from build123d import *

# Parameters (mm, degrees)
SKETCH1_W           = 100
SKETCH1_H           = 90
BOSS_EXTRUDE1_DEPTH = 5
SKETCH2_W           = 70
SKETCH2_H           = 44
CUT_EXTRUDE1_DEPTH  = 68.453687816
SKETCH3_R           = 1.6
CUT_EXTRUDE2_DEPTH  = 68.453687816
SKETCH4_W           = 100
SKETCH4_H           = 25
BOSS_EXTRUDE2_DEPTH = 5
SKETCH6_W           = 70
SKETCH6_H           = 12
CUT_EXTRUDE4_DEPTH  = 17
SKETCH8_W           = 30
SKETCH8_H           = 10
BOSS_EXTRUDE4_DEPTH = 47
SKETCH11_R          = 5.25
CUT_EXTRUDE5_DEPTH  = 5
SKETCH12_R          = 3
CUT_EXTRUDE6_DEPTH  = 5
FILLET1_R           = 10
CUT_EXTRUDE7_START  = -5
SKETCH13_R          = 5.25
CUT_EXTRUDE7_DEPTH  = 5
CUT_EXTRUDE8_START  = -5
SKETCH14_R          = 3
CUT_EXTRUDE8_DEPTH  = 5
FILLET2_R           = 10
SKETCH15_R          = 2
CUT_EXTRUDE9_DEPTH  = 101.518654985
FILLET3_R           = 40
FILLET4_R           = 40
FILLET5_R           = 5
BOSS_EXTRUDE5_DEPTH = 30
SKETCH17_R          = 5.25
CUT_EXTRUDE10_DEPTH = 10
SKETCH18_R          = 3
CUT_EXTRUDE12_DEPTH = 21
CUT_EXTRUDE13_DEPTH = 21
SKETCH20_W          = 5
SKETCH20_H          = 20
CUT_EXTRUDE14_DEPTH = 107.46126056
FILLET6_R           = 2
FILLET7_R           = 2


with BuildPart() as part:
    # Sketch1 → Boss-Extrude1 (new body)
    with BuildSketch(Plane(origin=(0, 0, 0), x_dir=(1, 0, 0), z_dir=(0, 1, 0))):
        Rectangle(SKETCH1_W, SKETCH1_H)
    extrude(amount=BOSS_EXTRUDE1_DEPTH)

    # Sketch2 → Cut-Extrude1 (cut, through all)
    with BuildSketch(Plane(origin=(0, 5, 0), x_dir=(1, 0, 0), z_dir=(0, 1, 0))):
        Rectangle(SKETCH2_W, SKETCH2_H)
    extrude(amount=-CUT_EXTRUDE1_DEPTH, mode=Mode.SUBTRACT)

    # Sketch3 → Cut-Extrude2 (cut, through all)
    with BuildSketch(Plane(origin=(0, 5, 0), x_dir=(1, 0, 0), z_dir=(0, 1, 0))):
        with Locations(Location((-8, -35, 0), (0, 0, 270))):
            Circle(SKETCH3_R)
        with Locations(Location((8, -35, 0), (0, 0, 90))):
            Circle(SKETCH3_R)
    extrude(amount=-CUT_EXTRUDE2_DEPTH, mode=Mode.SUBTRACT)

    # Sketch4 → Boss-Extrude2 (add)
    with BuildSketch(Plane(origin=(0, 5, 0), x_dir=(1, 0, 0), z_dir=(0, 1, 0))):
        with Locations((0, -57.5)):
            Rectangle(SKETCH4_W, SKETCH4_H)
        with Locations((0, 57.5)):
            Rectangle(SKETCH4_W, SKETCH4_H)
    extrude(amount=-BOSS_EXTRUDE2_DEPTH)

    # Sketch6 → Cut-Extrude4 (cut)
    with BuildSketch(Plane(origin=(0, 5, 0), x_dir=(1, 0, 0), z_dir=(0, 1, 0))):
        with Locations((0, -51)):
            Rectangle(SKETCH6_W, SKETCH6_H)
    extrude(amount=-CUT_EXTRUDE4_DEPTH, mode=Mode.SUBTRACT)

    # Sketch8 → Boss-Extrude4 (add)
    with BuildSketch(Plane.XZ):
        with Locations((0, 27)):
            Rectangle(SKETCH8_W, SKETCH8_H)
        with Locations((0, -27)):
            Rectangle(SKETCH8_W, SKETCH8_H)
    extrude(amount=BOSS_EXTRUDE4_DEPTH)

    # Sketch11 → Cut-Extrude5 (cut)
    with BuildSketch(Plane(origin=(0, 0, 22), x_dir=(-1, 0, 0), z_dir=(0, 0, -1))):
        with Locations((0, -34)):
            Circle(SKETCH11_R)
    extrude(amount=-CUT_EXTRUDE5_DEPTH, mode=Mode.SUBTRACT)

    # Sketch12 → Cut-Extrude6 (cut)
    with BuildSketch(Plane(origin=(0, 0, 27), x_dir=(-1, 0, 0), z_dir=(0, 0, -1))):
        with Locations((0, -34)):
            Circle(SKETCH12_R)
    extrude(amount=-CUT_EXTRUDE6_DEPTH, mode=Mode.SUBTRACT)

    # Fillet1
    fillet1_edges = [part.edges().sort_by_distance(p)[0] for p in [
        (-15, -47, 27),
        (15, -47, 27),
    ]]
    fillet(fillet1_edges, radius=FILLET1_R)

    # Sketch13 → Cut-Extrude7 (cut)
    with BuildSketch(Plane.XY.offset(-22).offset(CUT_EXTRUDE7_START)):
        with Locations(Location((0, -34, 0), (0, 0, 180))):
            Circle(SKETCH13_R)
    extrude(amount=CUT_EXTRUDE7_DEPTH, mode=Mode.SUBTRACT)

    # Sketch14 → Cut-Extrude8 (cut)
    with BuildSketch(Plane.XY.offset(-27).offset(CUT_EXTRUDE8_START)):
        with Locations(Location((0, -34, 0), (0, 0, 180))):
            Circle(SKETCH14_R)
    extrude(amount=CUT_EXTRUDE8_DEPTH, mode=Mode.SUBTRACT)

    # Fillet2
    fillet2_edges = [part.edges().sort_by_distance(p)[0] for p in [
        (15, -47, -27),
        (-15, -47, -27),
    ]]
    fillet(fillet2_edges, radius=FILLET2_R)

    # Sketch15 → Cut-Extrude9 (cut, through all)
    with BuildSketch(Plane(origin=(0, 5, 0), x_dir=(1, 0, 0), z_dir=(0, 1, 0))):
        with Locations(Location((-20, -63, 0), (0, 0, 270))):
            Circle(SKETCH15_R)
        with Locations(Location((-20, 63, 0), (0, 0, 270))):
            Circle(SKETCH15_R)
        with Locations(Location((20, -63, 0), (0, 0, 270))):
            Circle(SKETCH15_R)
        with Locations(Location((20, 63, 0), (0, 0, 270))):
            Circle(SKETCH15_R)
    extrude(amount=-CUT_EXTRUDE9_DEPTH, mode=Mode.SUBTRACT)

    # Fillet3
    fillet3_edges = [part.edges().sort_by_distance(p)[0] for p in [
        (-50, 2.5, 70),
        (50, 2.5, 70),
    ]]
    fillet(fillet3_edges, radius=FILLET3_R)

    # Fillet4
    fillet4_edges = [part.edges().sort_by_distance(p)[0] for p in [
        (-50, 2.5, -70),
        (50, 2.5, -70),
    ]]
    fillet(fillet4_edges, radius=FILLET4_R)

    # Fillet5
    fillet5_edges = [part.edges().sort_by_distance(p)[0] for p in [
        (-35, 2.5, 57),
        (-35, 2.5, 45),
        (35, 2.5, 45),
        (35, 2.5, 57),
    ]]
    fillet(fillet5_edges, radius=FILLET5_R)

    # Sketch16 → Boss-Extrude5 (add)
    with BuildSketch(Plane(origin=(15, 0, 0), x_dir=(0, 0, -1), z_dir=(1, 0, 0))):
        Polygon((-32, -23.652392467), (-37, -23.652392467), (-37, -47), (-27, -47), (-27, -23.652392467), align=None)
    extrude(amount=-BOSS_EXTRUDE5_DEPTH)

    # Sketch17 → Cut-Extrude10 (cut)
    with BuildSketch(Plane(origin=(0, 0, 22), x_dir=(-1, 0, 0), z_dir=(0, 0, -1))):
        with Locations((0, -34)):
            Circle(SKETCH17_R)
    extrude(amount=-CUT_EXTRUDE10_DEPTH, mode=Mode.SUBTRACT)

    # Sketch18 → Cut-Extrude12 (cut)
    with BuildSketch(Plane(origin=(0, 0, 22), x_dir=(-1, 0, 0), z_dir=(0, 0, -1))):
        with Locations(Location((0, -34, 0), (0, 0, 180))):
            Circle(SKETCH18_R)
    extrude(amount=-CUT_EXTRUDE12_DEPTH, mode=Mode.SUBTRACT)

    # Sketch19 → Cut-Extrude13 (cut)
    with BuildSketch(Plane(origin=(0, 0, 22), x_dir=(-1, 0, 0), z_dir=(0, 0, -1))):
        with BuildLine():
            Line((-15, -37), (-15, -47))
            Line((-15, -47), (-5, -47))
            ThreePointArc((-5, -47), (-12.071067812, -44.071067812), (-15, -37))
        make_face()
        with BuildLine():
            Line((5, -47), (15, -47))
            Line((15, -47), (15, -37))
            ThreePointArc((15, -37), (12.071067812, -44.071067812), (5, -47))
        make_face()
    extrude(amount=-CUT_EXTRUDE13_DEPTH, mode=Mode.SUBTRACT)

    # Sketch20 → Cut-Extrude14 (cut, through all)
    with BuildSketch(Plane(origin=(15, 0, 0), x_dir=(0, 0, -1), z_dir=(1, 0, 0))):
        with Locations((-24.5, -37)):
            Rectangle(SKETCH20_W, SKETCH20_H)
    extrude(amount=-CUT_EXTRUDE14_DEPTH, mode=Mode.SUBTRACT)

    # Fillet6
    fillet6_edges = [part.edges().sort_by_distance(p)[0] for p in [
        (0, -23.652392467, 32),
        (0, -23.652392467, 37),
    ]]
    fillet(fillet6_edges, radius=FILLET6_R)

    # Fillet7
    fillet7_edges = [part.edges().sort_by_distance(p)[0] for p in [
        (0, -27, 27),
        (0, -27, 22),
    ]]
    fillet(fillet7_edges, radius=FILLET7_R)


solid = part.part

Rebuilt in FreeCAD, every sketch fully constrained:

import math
import FreeCAD as App
import Part
import Sketcher
from FreeCAD import Vector


def edges_at(feature, points):
    """Names of the edges that pass closest to the given points."""
    edges = feature.Shape.Edges
    near = lambda p: min(range(len(edges)), key=lambda i: edges[i].distToShape(Part.Vertex(*p))[0])
    return sorted({f"Edge{near(p) + 1}" for p in points})

doc = App.newDocument("Part")
body = doc.addObject("PartDesign::Body", "Body")

# Sketch on XZ plane
sketch1 = doc.addObject("Sketcher::SketchObject", "Sketch")
body.addObject(sketch1)
sketch1.AttachmentSupport = (doc.XZ_Plane, [""])
sketch1.MapMode = "FlatFace"
sketch1.addGeometry([
    Part.LineSegment(Vector(-50, -45, 0), Vector(-50, 45, 0)),
    Part.LineSegment(Vector(-50, 45, 0), Vector(50, 45, 0)),
    Part.LineSegment(Vector(50, 45, 0), Vector(50, -45, 0)),
    Part.LineSegment(Vector(50, -45, 0), Vector(-50, -45, 0)),
], False)
sketch1.addConstraint([
    Sketcher.Constraint("Coincident", 0, 2, 1, 1),
    Sketcher.Constraint("Coincident", 1, 2, 2, 1),
    Sketcher.Constraint("Coincident", 2, 2, 3, 1),
    Sketcher.Constraint("Coincident", 3, 2, 0, 1),
    Sketcher.Constraint("Vertical", 0),
    Sketcher.Constraint("Horizontal", 1),
    Sketcher.Constraint("Vertical", 2),
    Sketcher.Constraint("Horizontal", 3),
    Sketcher.Constraint("Symmetric", 0, 2, 2, 2, -1, 1),
    Sketcher.Constraint("DistanceX", 1, 1, 1, 2, 100.0),
    Sketcher.Constraint("DistanceY", 0, 1, 0, 2, 90.0),
])
pad1 = doc.addObject("PartDesign::Pad", "Pad")
body.addObject(pad1)
pad1.Profile = sketch1
pad1.Length = 5
pad1.Reversed = True

# Sketch on XZ plane
sketch2 = doc.addObject("Sketcher::SketchObject", "Sketch001")
body.addObject(sketch2)
sketch2.AttachmentSupport = (doc.XZ_Plane, [""])
sketch2.MapMode = "FlatFace"
sketch2.AttachmentOffset = App.Placement(Vector(0, 0, -5), App.Rotation())
sketch2.addGeometry([
    Part.LineSegment(Vector(-35, -22, 0), Vector(-35, 22, 0)),
    Part.LineSegment(Vector(-35, 22, 0), Vector(35, 22, 0)),
    Part.LineSegment(Vector(35, 22, 0), Vector(35, -22, 0)),
    Part.LineSegment(Vector(35, -22, 0), Vector(-35, -22, 0)),
], False)
sketch2.addConstraint([
    Sketcher.Constraint("Coincident", 0, 2, 1, 1),
    Sketcher.Constraint("Coincident", 1, 2, 2, 1),
    Sketcher.Constraint("Coincident", 2, 2, 3, 1),
    Sketcher.Constraint("Coincident", 3, 2, 0, 1),
    Sketcher.Constraint("Vertical", 0),
    Sketcher.Constraint("Horizontal", 1),
    Sketcher.Constraint("Vertical", 2),
    Sketcher.Constraint("Horizontal", 3),
    Sketcher.Constraint("Symmetric", 0, 2, 2, 2, -1, 1),
    Sketcher.Constraint("DistanceX", 1, 1, 1, 2, 70.0),
    Sketcher.Constraint("DistanceY", 0, 1, 0, 2, 44.0),
])
pocket1 = doc.addObject("PartDesign::Pocket", "Pocket")
body.addObject(pocket1)
pocket1.Profile = sketch2
pocket1.Type = "ThroughAll"
pocket1.Reversed = True

# Sketch on XZ plane
sketch3 = doc.addObject("Sketcher::SketchObject", "Sketch002")
body.addObject(sketch3)
sketch3.AttachmentSupport = (doc.XZ_Plane, [""])
sketch3.MapMode = "FlatFace"
sketch3.AttachmentOffset = App.Placement(Vector(0, 0, -5), App.Rotation())
sketch3.addGeometry([
    Part.Circle(Vector(-8, 35, 0), Vector(0, 0, 1), 1.6),
    Part.Circle(Vector(8, 35, 0), Vector(0, 0, 1), 1.6),
], False)
sketch3.addConstraint([
    Sketcher.Constraint("Equal", 0, 1),
    Sketcher.Constraint("Symmetric", 0, 3, 1, 3, -2),
    Sketcher.Constraint("Diameter", 0, 3.2),
    Sketcher.Constraint("DistanceX", 0, 3, -1, 1, 8.0),
    Sketcher.Constraint("DistanceY", -1, 1, 0, 3, 35.0),
])
pocket2 = doc.addObject("PartDesign::Pocket", "Pocket001")
body.addObject(pocket2)
pocket2.Profile = sketch3
pocket2.Type = "ThroughAll"
pocket2.Reversed = True

# Sketch on XZ plane
sketch4 = doc.addObject("Sketcher::SketchObject", "Sketch003")
body.addObject(sketch4)
sketch4.AttachmentSupport = (doc.XZ_Plane, [""])
sketch4.MapMode = "FlatFace"
sketch4.AttachmentOffset = App.Placement(Vector(0, 0, -5), App.Rotation())
sketch4.addGeometry([
    Part.LineSegment(Vector(-50, 45, 0), Vector(-50, 70, 0)),  # 0
    Part.LineSegment(Vector(-50, 70, 0), Vector(50, 70, 0)),  # 1
    Part.LineSegment(Vector(50, 70, 0), Vector(50, 45, 0)),  # 2
    Part.LineSegment(Vector(50, 45, 0), Vector(-50, 45, 0)),  # 3
    Part.LineSegment(Vector(-50, -70, 0), Vector(-50, -45, 0)),  # 4
    Part.LineSegment(Vector(-50, -45, 0), Vector(50, -45, 0)),  # 5
    Part.LineSegment(Vector(50, -45, 0), Vector(50, -70, 0)),  # 6
    Part.LineSegment(Vector(50, -70, 0), Vector(-50, -70, 0)),  # 7
], False)
sketch4.addConstraint([
    Sketcher.Constraint("Coincident", 0, 2, 1, 1),
    Sketcher.Constraint("Coincident", 1, 2, 2, 1),
    Sketcher.Constraint("Coincident", 2, 2, 3, 1),
    Sketcher.Constraint("Coincident", 3, 2, 0, 1),
    Sketcher.Constraint("Coincident", 4, 2, 5, 1),
    Sketcher.Constraint("Coincident", 5, 2, 6, 1),
    Sketcher.Constraint("Coincident", 6, 2, 7, 1),
    Sketcher.Constraint("Coincident", 7, 2, 4, 1),
    Sketcher.Constraint("Vertical", 0),
    Sketcher.Constraint("Horizontal", 1),
    Sketcher.Constraint("Vertical", 2),
    Sketcher.Constraint("Horizontal", 3),
    Sketcher.Constraint("Vertical", 4),
    Sketcher.Constraint("Horizontal", 5),
    Sketcher.Constraint("Vertical", 6),
    Sketcher.Constraint("Horizontal", 7),
    Sketcher.Constraint("Symmetric", 2, 2, 4, 2, -1, 1),
    Sketcher.Constraint("Symmetric", 0, 2, 6, 2, -1, 1),
    Sketcher.Constraint("Vertical", 3, 2, 4, 2),
    Sketcher.Constraint("DistanceX", 1, 1, 1, 2, 100.0),
    Sketcher.Constraint("DistanceY", 0, 1, 0, 2, 25.0),
    Sketcher.Constraint("DistanceY", -1, 1, 0, 2, 70.0),
])
pad2 = doc.addObject("PartDesign::Pad", "Pad001")
body.addObject(pad2)
pad2.Profile = sketch4
pad2.Length = 5

# Sketch on XZ plane
sketch5 = doc.addObject("Sketcher::SketchObject", "Sketch004")
body.addObject(sketch5)
sketch5.AttachmentSupport = (doc.XZ_Plane, [""])
sketch5.MapMode = "FlatFace"
sketch5.AttachmentOffset = App.Placement(Vector(0, 0, -5), App.Rotation())
sketch5.addGeometry([
    Part.LineSegment(Vector(-35, 45, 0), Vector(-35, 57, 0)),
    Part.LineSegment(Vector(-35, 57, 0), Vector(35, 57, 0)),
    Part.LineSegment(Vector(35, 57, 0), Vector(35, 45, 0)),
    Part.LineSegment(Vector(35, 45, 0), Vector(-35, 45, 0)),
], False)
sketch5.addConstraint([
    Sketcher.Constraint("Coincident", 0, 2, 1, 1),
    Sketcher.Constraint("Coincident", 1, 2, 2, 1),
    Sketcher.Constraint("Coincident", 2, 2, 3, 1),
    Sketcher.Constraint("Coincident", 3, 2, 0, 1),
    Sketcher.Constraint("Vertical", 0),
    Sketcher.Constraint("Horizontal", 1),
    Sketcher.Constraint("Vertical", 2),
    Sketcher.Constraint("Horizontal", 3),
    Sketcher.Constraint("DistanceX", 1, 1, 1, 2, 70.0),
    Sketcher.Constraint("DistanceY", 0, 1, 0, 2, 12.0),
    Sketcher.Constraint("DistanceX", 0, 2, -1, 1, 35.0),
    Sketcher.Constraint("DistanceY", -1, 1, 0, 2, 57.0),
])
pocket3 = doc.addObject("PartDesign::Pocket", "Pocket002")
body.addObject(pocket3)
pocket3.Profile = sketch5
pocket3.Length = 17
pocket3.Reversed = True

# Sketch on XZ plane
sketch6 = doc.addObject("Sketcher::SketchObject", "Sketch005")
body.addObject(sketch6)
sketch6.AttachmentSupport = (doc.XZ_Plane, [""])
sketch6.MapMode = "FlatFace"
sketch6.addGeometry([
    Part.LineSegment(Vector(-15, 32, 0), Vector(-15, 22, 0)),  # 0
    Part.LineSegment(Vector(-15, 22, 0), Vector(15, 22, 0)),  # 1
    Part.LineSegment(Vector(15, 22, 0), Vector(15, 32, 0)),  # 2
    Part.LineSegment(Vector(15, 32, 0), Vector(-15, 32, 0)),  # 3
    Part.LineSegment(Vector(-15, -22, 0), Vector(-15, -32, 0)),  # 4
    Part.LineSegment(Vector(-15, -32, 0), Vector(15, -32, 0)),  # 5
    Part.LineSegment(Vector(15, -32, 0), Vector(15, -22, 0)),  # 6
    Part.LineSegment(Vector(15, -22, 0), Vector(-15, -22, 0)),  # 7
], False)
sketch6.addConstraint([
    Sketcher.Constraint("Coincident", 0, 2, 1, 1),
    Sketcher.Constraint("Coincident", 1, 2, 2, 1),
    Sketcher.Constraint("Coincident", 2, 2, 3, 1),
    Sketcher.Constraint("Coincident", 3, 2, 0, 1),
    Sketcher.Constraint("Coincident", 4, 2, 5, 1),
    Sketcher.Constraint("Coincident", 5, 2, 6, 1),
    Sketcher.Constraint("Coincident", 6, 2, 7, 1),
    Sketcher.Constraint("Coincident", 7, 2, 4, 1),
    Sketcher.Constraint("Vertical", 0),
    Sketcher.Constraint("Horizontal", 1),
    Sketcher.Constraint("Vertical", 2),
    Sketcher.Constraint("Horizontal", 3),
    Sketcher.Constraint("Vertical", 4),
    Sketcher.Constraint("Horizontal", 5),
    Sketcher.Constraint("Vertical", 6),
    Sketcher.Constraint("Horizontal", 7),
    Sketcher.Constraint("Symmetric", 2, 2, 4, 2, -1, 1),
    Sketcher.Constraint("Symmetric", 0, 2, 6, 2, -1, 1),
    Sketcher.Constraint("Vertical", 3, 2, 4, 2),
    Sketcher.Constraint("DistanceX", 1, 1, 1, 2, 30.0),
    Sketcher.Constraint("DistanceY", 0, 2, 0, 1, 10.0),
    Sketcher.Constraint("DistanceY", -1, 1, 0, 2, 22.0),
])
pad3 = doc.addObject("PartDesign::Pad", "Pad002")
body.addObject(pad3)
pad3.Profile = sketch6
pad3.Length = 47

# Sketch on XY plane
sketch7 = doc.addObject("Sketcher::SketchObject", "Sketch006")
body.addObject(sketch7)
sketch7.AttachmentSupport = (doc.XY_Plane, [""])
sketch7.MapMode = "FlatFace"
sketch7.AttachmentOffset = App.Placement(Vector(0, 0, 22), App.Rotation())
sketch7.addGeometry(Part.Circle(Vector(0, -34, 0), Vector(0, 0, 1), 5), False)
sketch7.addConstraint([
    Sketcher.Constraint("PointOnObject", 0, 3, -2),
    Sketcher.Constraint("Diameter", 0, 10.5),
    Sketcher.Constraint("DistanceY", 0, 3, -1, 1, 34.0),
])
pocket4 = doc.addObject("PartDesign::Pocket", "Pocket003")
body.addObject(pocket4)
pocket4.Profile = sketch7
pocket4.Length = 5
pocket4.Reversed = True

# Sketch on XY plane
sketch8 = doc.addObject("Sketcher::SketchObject", "Sketch007")
body.addObject(sketch8)
sketch8.AttachmentSupport = (doc.XY_Plane, [""])
sketch8.MapMode = "FlatFace"
sketch8.AttachmentOffset = App.Placement(Vector(0, 0, 27), App.Rotation())
sketch8.addGeometry(Part.Circle(Vector(0, -34, 0), Vector(0, 0, 1), 3), False)
sketch8.addConstraint([
    Sketcher.Constraint("PointOnObject", 0, 3, -2),
    Sketcher.Constraint("Diameter", 0, 6.0),
    Sketcher.Constraint("DistanceY", 0, 3, -1, 1, 34.0),
])
pocket5 = doc.addObject("PartDesign::Pocket", "Pocket004")
body.addObject(pocket5)
pocket5.Profile = sketch8
pocket5.Length = 5
pocket5.Reversed = True
doc.recompute()

fillet = doc.addObject("PartDesign::Fillet", "Fillet")
body.addObject(fillet)
fillet.Base = (pocket5, edges_at(pocket5, [(-15, -47, 27), (15, -47, 27)]))
fillet.Radius = 10

# Sketch on XY plane
sketch9 = doc.addObject("Sketcher::SketchObject", "Sketch008")
body.addObject(sketch9)
sketch9.AttachmentSupport = (doc.XY_Plane, [""])
sketch9.MapMode = "FlatFace"
sketch9.AttachmentOffset = App.Placement(Vector(0, 0, -27), App.Rotation())
sketch9.addGeometry(Part.Circle(Vector(0, -34, 0), Vector(0, 0, 1), 5), False)
sketch9.addConstraint([
    Sketcher.Constraint("PointOnObject", 0, 3, -2),
    Sketcher.Constraint("Diameter", 0, 10.5),
    Sketcher.Constraint("DistanceY", 0, 3, -1, 1, 34.0),
])
pocket6 = doc.addObject("PartDesign::Pocket", "Pocket005")
body.addObject(pocket6)
pocket6.Profile = sketch9
pocket6.Length = 5
pocket6.Reversed = True

# Sketch on XY plane
sketch10 = doc.addObject("Sketcher::SketchObject", "Sketch009")
body.addObject(sketch10)
sketch10.AttachmentSupport = (doc.XY_Plane, [""])
sketch10.MapMode = "FlatFace"
sketch10.AttachmentOffset = App.Placement(Vector(0, 0, -32), App.Rotation())
sketch10.addGeometry(Part.Circle(Vector(0, -34, 0), Vector(0, 0, 1), 3), False)
sketch10.addConstraint([
    Sketcher.Constraint("PointOnObject", 0, 3, -2),
    Sketcher.Constraint("Diameter", 0, 6.0),
    Sketcher.Constraint("DistanceY", 0, 3, -1, 1, 34.0),
])
pocket7 = doc.addObject("PartDesign::Pocket", "Pocket006")
body.addObject(pocket7)
pocket7.Profile = sketch10
pocket7.Length = 5
pocket7.Reversed = True
doc.recompute()

fillet2 = doc.addObject("PartDesign::Fillet", "Fillet001")
body.addObject(fillet2)
fillet2.Base = (pocket7, edges_at(pocket7, [(15, -47, -27), (-15, -47, -27)]))
fillet2.Radius = 10

# Sketch on XZ plane
sketch11 = doc.addObject("Sketcher::SketchObject", "Sketch010")
body.addObject(sketch11)
sketch11.AttachmentSupport = (doc.XZ_Plane, [""])
sketch11.MapMode = "FlatFace"
sketch11.AttachmentOffset = App.Placement(Vector(0, 0, -5), App.Rotation())
sketch11.addGeometry([
    Part.Circle(Vector(-20, 63, 0), Vector(0, 0, 1), 2),
    Part.Circle(Vector(-20, -63, 0), Vector(0, 0, 1), 2),
    Part.Circle(Vector(20, 63, 0), Vector(0, 0, 1), 2),
    Part.Circle(Vector(20, -63, 0), Vector(0, 0, 1), 2),
], False)
sketch11.addConstraint([
    Sketcher.Constraint("Equal", 0, 1),
    Sketcher.Constraint("Equal", 1, 2),
    Sketcher.Constraint("Equal", 2, 3),
    Sketcher.Constraint("Symmetric", 1, 3, 2, 3, -1, 1),
    Sketcher.Constraint("Symmetric", 0, 3, 3, 3, -1, 1),
    Sketcher.Constraint("Symmetric", 0, 3, 2, 3, -2),
    Sketcher.Constraint("Diameter", 0, 4.0),
    Sketcher.Constraint("DistanceX", 0, 3, -1, 1, 20.0),
    Sketcher.Constraint("DistanceY", -1, 1, 0, 3, 63.0),
])
pocket8 = doc.addObject("PartDesign::Pocket", "Pocket007")
body.addObject(pocket8)
pocket8.Profile = sketch11
pocket8.Type = "ThroughAll"
pocket8.Reversed = True
doc.recompute()

fillet3 = doc.addObject("PartDesign::Fillet", "Fillet002")
body.addObject(fillet3)
fillet3.Base = (pocket8, edges_at(pocket8, [(-50, 2.5, 70), (50, 2.5, 70)]))
fillet3.Radius = 40
doc.recompute()

fillet4 = doc.addObject("PartDesign::Fillet", "Fillet003")
body.addObject(fillet4)
fillet4.Base = (fillet3, edges_at(fillet3, [(-50, 2.5, -70), (50, 2.5, -70)]))
fillet4.Radius = 40
doc.recompute()

fillet5 = doc.addObject("PartDesign::Fillet", "Fillet004")
body.addObject(fillet5)
fillet5.Base = (fillet4, edges_at(fillet4, [
    (-35, 2.5, 57),
    (-35, 2.5, 45),
    (35, 2.5, 45),
    (35, 2.5, 57),
]))
fillet5.Radius = 5

# Sketch on YZ plane
sketch12 = doc.addObject("Sketcher::SketchObject", "Sketch011")
body.addObject(sketch12)
sketch12.AttachmentSupport = (doc.YZ_Plane, [""])
sketch12.MapMode = "FlatFace"
sketch12.AttachmentOffset = App.Placement(Vector(0, 0, 15), App.Rotation())
sketch12.addGeometry([
    Part.LineSegment(Vector(-24, 37, 0), Vector(-47, 37, 0)),
    Part.LineSegment(Vector(-47, 37, 0), Vector(-47, 27, 0)),
    Part.LineSegment(Vector(-47, 27, 0), Vector(-24, 27, 0)),
    Part.LineSegment(Vector(-24, 27, 0), Vector(-24, 37, 0)),
], False)
sketch12.addConstraint([
    Sketcher.Constraint("Coincident", 0, 2, 1, 1),
    Sketcher.Constraint("Coincident", 1, 2, 2, 1),
    Sketcher.Constraint("Coincident", 2, 2, 3, 1),
    Sketcher.Constraint("Coincident", 3, 2, 0, 1),
    Sketcher.Constraint("Horizontal", 0),
    Sketcher.Constraint("Vertical", 1),
    Sketcher.Constraint("Horizontal", 2),
    Sketcher.Constraint("Vertical", 3),
    Sketcher.Constraint("DistanceY", 1, 2, 1, 1, 10.0),
    Sketcher.Constraint("DistanceX", 0, 2, -1, 1, 47.0),
    Sketcher.Constraint("DistanceY", -1, 1, 0, 2, 37.0),
    Sketcher.Constraint("DistanceX", 0, 2, 0, 1, 23.347608),
])
pad4 = doc.addObject("PartDesign::Pad", "Pad003")
body.addObject(pad4)
pad4.Profile = sketch12
pad4.Length = 30
pad4.Reversed = True

# Sketch on XY plane
sketch13 = doc.addObject("Sketcher::SketchObject", "Sketch012")
body.addObject(sketch13)
sketch13.AttachmentSupport = (doc.XY_Plane, [""])
sketch13.MapMode = "FlatFace"
sketch13.AttachmentOffset = App.Placement(Vector(0, 0, 22), App.Rotation())
sketch13.addGeometry(Part.Circle(Vector(0, -34, 0), Vector(0, 0, 1), 5), False)
sketch13.addConstraint([
    Sketcher.Constraint("PointOnObject", 0, 3, -2),
    Sketcher.Constraint("Diameter", 0, 10.5),
    Sketcher.Constraint("DistanceY", 0, 3, -1, 1, 34.0),
])
pocket9 = doc.addObject("PartDesign::Pocket", "Pocket008")
body.addObject(pocket9)
pocket9.Profile = sketch13
pocket9.Length = 10
pocket9.Reversed = True

# Sketch on XY plane
sketch14 = doc.addObject("Sketcher::SketchObject", "Sketch013")
body.addObject(sketch14)
sketch14.AttachmentSupport = (doc.XY_Plane, [""])
sketch14.MapMode = "FlatFace"
sketch14.AttachmentOffset = App.Placement(Vector(0, 0, 22), App.Rotation())
sketch14.addGeometry(Part.Circle(Vector(0, -34, 0), Vector(0, 0, 1), 3), False)
sketch14.addConstraint([
    Sketcher.Constraint("PointOnObject", 0, 3, -2),
    Sketcher.Constraint("Diameter", 0, 6.0),
    Sketcher.Constraint("DistanceY", 0, 3, -1, 1, 34.0),
])
pocket10 = doc.addObject("PartDesign::Pocket", "Pocket009")
body.addObject(pocket10)
pocket10.Profile = sketch14
pocket10.Length = 21
pocket10.Reversed = True

# Sketch on XY plane
sketch15 = doc.addObject("Sketcher::SketchObject", "Sketch014")
body.addObject(sketch15)
sketch15.AttachmentSupport = (doc.XY_Plane, [""])
sketch15.MapMode = "FlatFace"
sketch15.AttachmentOffset = App.Placement(Vector(0, 0, 22), App.Rotation())
sketch15.addGeometry([
    Part.LineSegment(Vector(15, -37, 0), Vector(15, -47, 0)),  # 0
    Part.LineSegment(Vector(15, -47, 0), Vector(5, -47, 0)),  # 1
    Part.ArcOfCircle(Part.Circle(Vector(5, -37, 0), Vector(0, 0, 1), 10), math.radians(-90), math.radians(0)),  # 2
    Part.LineSegment(Vector(-5, -47, 0), Vector(-15, -47, 0)),  # 3
    Part.LineSegment(Vector(-15, -47, 0), Vector(-15, -37, 0)),  # 4
    Part.ArcOfCircle(Part.Circle(Vector(-5, -37, 0), Vector(0, 0, 1), 10), math.radians(180), math.radians(270)),  # 5
], False)
sketch15.addConstraint([
    Sketcher.Constraint("Coincident", 0, 2, 1, 1),
    Sketcher.Constraint("Tangent", 1, 2, 2, 1),
    Sketcher.Constraint("Tangent", 2, 2, 0, 1),
    Sketcher.Constraint("Coincident", 3, 2, 4, 1),
    Sketcher.Constraint("Tangent", 4, 2, 5, 1),
    Sketcher.Constraint("Tangent", 5, 2, 3, 1),
    Sketcher.Constraint("Vertical", 0),
    Sketcher.Constraint("Horizontal", 1),
    Sketcher.Constraint("Horizontal", 3),
    Sketcher.Constraint("Vertical", 4),
    Sketcher.Constraint("Equal", 2, 5),
    Sketcher.Constraint("Symmetric", 2, 3, 5, 3, -2),
    Sketcher.Constraint("Radius", 2, 10.0),
    Sketcher.Constraint("DistanceX", -1, 1, 2, 3, 5.0),
    Sketcher.Constraint("DistanceY", 2, 3, -1, 1, 37.0),
])
pocket11 = doc.addObject("PartDesign::Pocket", "Pocket010")
body.addObject(pocket11)
pocket11.Profile = sketch15
pocket11.Length = 21
pocket11.Reversed = True

# Sketch on YZ plane
sketch16 = doc.addObject("Sketcher::SketchObject", "Sketch015")
body.addObject(sketch16)
sketch16.AttachmentSupport = (doc.YZ_Plane, [""])
sketch16.MapMode = "FlatFace"
sketch16.AttachmentOffset = App.Placement(Vector(0, 0, 15), App.Rotation())
sketch16.addGeometry([
    Part.LineSegment(Vector(-27, 27, 0), Vector(-47, 27, 0)),
    Part.LineSegment(Vector(-47, 27, 0), Vector(-47, 22, 0)),
    Part.LineSegment(Vector(-47, 22, 0), Vector(-27, 22, 0)),
    Part.LineSegment(Vector(-27, 22, 0), Vector(-27, 27, 0)),
], False)
sketch16.addConstraint([
    Sketcher.Constraint("Coincident", 0, 2, 1, 1),
    Sketcher.Constraint("Coincident", 1, 2, 2, 1),
    Sketcher.Constraint("Coincident", 2, 2, 3, 1),
    Sketcher.Constraint("Coincident", 3, 2, 0, 1),
    Sketcher.Constraint("Horizontal", 0),
    Sketcher.Constraint("Vertical", 1),
    Sketcher.Constraint("Horizontal", 2),
    Sketcher.Constraint("Vertical", 3),
    Sketcher.Constraint("DistanceX", 0, 2, 0, 1, 20.0),
    Sketcher.Constraint("DistanceY", 1, 2, 1, 1, 5.0),
    Sketcher.Constraint("DistanceX", 0, 2, -1, 1, 47.0),
    Sketcher.Constraint("DistanceY", -1, 1, 0, 2, 27.0),
])
pocket12 = doc.addObject("PartDesign::Pocket", "Pocket011")
body.addObject(pocket12)
pocket12.Profile = sketch16
pocket12.Type = "ThroughAll"
doc.recompute()

fillet6 = doc.addObject("PartDesign::Fillet", "Fillet005")
body.addObject(fillet6)
fillet6.Base = (pocket12, edges_at(pocket12, [(0, -23.652, 32), (0, -23.652, 37)]))
fillet6.Radius = 2
doc.recompute()

fillet7 = doc.addObject("PartDesign::Fillet", "Fillet006")
body.addObject(fillet7)
fillet7.Base = (fillet6, edges_at(fillet6, [(0, -27, 27), (0, -27, 22)]))
fillet7.Radius = 2

doc.recompute()
